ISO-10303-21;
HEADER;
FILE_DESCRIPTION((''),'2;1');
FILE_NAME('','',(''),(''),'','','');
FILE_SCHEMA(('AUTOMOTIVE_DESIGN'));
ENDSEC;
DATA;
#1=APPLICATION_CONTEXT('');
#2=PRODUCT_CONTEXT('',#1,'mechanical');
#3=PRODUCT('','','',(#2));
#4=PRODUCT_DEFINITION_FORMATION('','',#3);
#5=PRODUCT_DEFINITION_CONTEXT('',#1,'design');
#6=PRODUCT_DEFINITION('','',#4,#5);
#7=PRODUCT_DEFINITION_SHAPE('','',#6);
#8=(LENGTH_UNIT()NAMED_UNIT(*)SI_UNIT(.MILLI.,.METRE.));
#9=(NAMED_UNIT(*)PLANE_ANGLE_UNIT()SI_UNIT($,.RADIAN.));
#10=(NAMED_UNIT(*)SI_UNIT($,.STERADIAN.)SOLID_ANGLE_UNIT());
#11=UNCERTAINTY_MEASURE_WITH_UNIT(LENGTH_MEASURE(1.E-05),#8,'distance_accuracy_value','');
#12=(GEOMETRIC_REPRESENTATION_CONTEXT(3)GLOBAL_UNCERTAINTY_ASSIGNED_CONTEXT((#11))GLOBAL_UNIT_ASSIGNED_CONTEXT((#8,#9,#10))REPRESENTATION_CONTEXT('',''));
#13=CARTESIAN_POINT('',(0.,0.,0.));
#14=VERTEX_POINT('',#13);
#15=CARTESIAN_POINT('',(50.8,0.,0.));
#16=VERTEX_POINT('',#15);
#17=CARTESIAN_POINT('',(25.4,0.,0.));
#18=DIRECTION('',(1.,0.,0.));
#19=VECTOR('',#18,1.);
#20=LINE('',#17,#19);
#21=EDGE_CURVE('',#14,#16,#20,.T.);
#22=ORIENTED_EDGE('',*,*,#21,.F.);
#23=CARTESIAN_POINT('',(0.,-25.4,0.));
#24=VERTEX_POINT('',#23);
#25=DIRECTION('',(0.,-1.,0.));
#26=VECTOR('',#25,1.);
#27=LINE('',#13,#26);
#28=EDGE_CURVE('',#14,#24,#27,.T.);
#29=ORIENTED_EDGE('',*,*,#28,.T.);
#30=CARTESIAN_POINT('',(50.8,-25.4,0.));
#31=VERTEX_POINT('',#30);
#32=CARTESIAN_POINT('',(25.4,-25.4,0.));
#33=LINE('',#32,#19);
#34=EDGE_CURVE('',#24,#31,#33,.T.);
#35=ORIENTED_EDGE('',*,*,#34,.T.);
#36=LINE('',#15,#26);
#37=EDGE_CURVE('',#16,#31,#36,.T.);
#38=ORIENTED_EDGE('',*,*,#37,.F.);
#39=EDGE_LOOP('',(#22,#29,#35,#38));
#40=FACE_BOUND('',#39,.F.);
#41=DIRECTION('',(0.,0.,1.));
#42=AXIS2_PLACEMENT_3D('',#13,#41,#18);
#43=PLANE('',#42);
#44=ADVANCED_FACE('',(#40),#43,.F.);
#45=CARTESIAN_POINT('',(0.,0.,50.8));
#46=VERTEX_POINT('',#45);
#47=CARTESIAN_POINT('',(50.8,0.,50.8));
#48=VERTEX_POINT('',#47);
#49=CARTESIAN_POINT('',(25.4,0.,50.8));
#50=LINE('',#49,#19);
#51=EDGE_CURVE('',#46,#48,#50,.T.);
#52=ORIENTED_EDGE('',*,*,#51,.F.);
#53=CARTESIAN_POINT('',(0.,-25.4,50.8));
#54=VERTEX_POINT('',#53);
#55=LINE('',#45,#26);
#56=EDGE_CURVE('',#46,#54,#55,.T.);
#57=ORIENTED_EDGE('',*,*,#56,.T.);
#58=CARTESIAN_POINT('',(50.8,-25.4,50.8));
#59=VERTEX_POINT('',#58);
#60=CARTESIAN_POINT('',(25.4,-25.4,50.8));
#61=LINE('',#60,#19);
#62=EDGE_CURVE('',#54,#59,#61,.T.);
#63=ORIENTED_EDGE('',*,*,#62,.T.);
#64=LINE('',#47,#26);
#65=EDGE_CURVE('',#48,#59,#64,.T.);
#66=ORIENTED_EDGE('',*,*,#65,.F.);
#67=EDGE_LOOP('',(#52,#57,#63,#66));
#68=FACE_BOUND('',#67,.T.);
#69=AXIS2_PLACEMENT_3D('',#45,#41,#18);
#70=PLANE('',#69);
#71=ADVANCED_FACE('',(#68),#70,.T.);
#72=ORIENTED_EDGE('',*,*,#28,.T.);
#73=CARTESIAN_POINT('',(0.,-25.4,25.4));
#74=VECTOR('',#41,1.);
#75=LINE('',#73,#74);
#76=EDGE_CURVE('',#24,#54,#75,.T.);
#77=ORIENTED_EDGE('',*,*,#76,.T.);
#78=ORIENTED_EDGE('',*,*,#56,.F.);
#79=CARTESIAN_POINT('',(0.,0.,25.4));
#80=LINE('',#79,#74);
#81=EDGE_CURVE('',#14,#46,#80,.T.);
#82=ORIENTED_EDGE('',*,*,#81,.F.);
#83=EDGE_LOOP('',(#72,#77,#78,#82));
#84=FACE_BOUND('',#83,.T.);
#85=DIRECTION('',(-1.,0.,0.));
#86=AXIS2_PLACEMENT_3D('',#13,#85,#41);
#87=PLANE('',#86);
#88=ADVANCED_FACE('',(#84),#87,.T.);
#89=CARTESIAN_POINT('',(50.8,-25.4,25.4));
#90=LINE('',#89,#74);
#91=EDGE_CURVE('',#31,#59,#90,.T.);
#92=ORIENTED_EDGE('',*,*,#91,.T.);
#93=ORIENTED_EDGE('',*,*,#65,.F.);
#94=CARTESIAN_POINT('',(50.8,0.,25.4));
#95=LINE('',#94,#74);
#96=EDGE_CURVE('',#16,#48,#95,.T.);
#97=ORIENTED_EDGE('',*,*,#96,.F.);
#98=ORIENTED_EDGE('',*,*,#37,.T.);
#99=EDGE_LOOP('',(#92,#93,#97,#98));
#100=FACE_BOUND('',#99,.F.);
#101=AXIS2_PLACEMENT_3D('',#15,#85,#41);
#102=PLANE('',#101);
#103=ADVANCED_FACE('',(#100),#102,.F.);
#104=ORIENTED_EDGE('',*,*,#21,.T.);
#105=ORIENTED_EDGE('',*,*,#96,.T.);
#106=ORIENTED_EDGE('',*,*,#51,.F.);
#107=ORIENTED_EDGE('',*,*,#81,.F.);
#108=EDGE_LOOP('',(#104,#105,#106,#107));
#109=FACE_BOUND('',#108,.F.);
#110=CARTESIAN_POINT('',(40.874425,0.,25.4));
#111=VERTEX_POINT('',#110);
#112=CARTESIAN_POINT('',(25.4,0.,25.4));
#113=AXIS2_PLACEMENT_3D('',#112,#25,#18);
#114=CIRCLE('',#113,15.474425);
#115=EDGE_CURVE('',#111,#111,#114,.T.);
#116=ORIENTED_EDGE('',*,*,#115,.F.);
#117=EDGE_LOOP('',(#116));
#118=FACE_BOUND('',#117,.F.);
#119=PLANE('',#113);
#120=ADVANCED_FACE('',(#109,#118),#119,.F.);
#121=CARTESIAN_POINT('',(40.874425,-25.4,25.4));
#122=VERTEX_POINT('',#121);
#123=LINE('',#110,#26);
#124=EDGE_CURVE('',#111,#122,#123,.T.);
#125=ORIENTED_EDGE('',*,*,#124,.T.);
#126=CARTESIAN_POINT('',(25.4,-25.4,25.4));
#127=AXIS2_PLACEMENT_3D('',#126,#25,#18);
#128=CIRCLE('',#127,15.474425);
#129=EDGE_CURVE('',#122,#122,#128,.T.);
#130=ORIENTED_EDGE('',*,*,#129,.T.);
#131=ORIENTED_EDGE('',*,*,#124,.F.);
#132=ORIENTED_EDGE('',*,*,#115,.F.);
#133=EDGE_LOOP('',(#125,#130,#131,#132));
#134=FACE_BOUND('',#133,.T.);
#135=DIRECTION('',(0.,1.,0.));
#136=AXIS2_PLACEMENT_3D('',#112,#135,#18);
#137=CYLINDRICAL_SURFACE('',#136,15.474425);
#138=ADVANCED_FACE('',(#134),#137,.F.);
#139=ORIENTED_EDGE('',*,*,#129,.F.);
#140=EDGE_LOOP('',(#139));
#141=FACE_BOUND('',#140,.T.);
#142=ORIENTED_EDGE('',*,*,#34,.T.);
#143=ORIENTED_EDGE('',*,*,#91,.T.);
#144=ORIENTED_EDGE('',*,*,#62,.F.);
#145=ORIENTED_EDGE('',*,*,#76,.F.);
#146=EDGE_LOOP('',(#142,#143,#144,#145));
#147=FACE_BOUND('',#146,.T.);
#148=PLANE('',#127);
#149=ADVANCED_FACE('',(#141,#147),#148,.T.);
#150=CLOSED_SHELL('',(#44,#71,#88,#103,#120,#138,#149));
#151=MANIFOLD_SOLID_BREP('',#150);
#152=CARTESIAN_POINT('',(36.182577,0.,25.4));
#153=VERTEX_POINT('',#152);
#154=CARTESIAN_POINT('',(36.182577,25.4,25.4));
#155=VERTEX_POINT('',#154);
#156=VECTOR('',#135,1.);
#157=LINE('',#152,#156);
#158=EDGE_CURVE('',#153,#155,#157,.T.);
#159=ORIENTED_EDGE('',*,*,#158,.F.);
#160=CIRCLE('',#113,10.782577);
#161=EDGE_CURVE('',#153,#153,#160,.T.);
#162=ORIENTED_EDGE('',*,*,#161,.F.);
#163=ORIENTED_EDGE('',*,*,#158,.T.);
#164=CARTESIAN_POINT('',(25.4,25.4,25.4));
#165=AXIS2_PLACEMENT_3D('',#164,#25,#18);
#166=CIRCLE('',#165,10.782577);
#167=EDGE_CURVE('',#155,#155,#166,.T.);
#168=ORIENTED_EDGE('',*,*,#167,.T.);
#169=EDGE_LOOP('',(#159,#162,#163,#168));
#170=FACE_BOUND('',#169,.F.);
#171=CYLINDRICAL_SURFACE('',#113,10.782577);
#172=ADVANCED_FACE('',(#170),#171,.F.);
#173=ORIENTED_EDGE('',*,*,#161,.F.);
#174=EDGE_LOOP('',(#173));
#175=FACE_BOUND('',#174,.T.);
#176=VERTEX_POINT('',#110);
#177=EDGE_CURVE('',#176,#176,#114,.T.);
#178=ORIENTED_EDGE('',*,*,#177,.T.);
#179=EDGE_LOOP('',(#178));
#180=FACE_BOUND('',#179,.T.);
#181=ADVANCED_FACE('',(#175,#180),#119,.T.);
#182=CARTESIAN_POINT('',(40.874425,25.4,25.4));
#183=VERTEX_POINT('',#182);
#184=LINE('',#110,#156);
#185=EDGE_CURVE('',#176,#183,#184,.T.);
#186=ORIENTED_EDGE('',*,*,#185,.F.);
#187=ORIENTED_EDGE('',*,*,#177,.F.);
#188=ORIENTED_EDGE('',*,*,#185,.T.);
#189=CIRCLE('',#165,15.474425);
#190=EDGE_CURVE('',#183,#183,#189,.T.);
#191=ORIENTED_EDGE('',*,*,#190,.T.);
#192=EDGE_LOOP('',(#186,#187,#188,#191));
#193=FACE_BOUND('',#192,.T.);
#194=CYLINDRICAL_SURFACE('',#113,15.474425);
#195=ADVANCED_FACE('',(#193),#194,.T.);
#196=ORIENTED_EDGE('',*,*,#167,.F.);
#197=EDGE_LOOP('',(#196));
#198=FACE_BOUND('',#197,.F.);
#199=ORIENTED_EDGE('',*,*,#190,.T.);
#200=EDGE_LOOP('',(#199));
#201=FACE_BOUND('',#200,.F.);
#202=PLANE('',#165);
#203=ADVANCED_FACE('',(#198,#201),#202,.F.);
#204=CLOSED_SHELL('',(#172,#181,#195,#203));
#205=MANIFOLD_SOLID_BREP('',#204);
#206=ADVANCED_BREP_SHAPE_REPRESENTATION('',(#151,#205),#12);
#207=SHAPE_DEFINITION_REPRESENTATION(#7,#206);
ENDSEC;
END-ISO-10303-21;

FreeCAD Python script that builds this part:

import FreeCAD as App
import Part
import Sketcher

V = App.Vector
Q = App.Units.Quantity


def add_polygon(sketch, points):
    """Adds a closed chain of lines whose ends are joined by coincident constraints."""
    first, n = sketch.GeometryCount, len(points)
    for a, b in zip(points, points[1:] + points[:1]):
        sketch.addGeometry(Part.LineSegment(App.Vector(*a, 0), App.Vector(*b, 0)), False)
    for i in range(n):
        sketch.addConstraint(Sketcher.Constraint("Coincident", first + i, 2, first + (i + 1) % n, 1))

doc = App.newDocument("Part")
body = doc.addObject("PartDesign::Body", "Body")
body.AllowCompound = True

# Sketch on XZ plane
sketch1 = body.newObject("Sketcher::SketchObject", "Sketch")
sketch1.AttachmentSupport = (doc.getObject("XZ_Plane"), [""])
sketch1.MapMode = "FlatFace"
add_polygon(sketch1, [(0, 51), (0, 0), (51, 0), (51, 51)])  # lines 0-3
sketch1.addGeometry(Part.Circle(V(25, 25, 0), V(0, 0, 1), 15), False)  # 4
sketch1.addConstraint(Sketcher.Constraint("Vertical", 0))
sketch1.addConstraint(Sketcher.Constraint("Horizontal", 1))
sketch1.addConstraint(Sketcher.Constraint("Vertical", 2))
sketch1.addConstraint(Sketcher.Constraint("Horizontal", 3))
sketch1.addConstraint(Sketcher.Constraint("Coincident", 0, 2, -1, 1))
sketch1.addConstraint(Sketcher.Constraint("Equal", 3, 0))
sketch1.addConstraint(Sketcher.Constraint("DistanceX", 1, 1, 1, 2, Q("2 in")))
sketch1.addConstraint(Sketcher.Constraint("DistanceX", -1, 1, 4, 3, Q("1 in")))
sketch1.addConstraint(Sketcher.Constraint("DistanceY", -1, 1, 4, 3, Q("1 in")))
sketch1.addConstraint(Sketcher.Constraint("Diameter", 4, 30.94885))
pad1 = body.newObject("PartDesign::Pad", "Pad")
pad1.Profile = sketch1
pad1.Length = Q("1 in")

# Sketch on XZ plane
sketch2 = body.newObject("Sketcher::SketchObject", "Sketch001")
sketch2.AttachmentSupport = (doc.getObject("XZ_Plane"), [""])
sketch2.MapMode = "FlatFace"
sketch2.addGeometry(Part.Circle(V(25, 25, 0), V(0, 0, 1), 15), False)
sketch2.addGeometry(Part.Circle(V(25, 25, 0), V(0, 0, 1), 11), False)
sketch2.addConstraint(Sketcher.Constraint("Coincident", 1, 3, 0, 3))
sketch2.addConstraint(Sketcher.Constraint("DistanceX", -1, 1, 0, 3, Q("1 in")))
sketch2.addConstraint(Sketcher.Constraint("DistanceY", -1, 1, 0, 3, Q("1 in")))
sketch2.addConstraint(Sketcher.Constraint("Diameter", 0, 30.94885))
sketch2.addConstraint(Sketcher.Constraint("Diameter", 1, 21.565154))
pad2 = body.newObject("PartDesign::Pad", "Pad001")
pad2.Profile = sketch2
pad2.Length = Q("1 in")
pad2.Reversed = True

doc.recompute()
